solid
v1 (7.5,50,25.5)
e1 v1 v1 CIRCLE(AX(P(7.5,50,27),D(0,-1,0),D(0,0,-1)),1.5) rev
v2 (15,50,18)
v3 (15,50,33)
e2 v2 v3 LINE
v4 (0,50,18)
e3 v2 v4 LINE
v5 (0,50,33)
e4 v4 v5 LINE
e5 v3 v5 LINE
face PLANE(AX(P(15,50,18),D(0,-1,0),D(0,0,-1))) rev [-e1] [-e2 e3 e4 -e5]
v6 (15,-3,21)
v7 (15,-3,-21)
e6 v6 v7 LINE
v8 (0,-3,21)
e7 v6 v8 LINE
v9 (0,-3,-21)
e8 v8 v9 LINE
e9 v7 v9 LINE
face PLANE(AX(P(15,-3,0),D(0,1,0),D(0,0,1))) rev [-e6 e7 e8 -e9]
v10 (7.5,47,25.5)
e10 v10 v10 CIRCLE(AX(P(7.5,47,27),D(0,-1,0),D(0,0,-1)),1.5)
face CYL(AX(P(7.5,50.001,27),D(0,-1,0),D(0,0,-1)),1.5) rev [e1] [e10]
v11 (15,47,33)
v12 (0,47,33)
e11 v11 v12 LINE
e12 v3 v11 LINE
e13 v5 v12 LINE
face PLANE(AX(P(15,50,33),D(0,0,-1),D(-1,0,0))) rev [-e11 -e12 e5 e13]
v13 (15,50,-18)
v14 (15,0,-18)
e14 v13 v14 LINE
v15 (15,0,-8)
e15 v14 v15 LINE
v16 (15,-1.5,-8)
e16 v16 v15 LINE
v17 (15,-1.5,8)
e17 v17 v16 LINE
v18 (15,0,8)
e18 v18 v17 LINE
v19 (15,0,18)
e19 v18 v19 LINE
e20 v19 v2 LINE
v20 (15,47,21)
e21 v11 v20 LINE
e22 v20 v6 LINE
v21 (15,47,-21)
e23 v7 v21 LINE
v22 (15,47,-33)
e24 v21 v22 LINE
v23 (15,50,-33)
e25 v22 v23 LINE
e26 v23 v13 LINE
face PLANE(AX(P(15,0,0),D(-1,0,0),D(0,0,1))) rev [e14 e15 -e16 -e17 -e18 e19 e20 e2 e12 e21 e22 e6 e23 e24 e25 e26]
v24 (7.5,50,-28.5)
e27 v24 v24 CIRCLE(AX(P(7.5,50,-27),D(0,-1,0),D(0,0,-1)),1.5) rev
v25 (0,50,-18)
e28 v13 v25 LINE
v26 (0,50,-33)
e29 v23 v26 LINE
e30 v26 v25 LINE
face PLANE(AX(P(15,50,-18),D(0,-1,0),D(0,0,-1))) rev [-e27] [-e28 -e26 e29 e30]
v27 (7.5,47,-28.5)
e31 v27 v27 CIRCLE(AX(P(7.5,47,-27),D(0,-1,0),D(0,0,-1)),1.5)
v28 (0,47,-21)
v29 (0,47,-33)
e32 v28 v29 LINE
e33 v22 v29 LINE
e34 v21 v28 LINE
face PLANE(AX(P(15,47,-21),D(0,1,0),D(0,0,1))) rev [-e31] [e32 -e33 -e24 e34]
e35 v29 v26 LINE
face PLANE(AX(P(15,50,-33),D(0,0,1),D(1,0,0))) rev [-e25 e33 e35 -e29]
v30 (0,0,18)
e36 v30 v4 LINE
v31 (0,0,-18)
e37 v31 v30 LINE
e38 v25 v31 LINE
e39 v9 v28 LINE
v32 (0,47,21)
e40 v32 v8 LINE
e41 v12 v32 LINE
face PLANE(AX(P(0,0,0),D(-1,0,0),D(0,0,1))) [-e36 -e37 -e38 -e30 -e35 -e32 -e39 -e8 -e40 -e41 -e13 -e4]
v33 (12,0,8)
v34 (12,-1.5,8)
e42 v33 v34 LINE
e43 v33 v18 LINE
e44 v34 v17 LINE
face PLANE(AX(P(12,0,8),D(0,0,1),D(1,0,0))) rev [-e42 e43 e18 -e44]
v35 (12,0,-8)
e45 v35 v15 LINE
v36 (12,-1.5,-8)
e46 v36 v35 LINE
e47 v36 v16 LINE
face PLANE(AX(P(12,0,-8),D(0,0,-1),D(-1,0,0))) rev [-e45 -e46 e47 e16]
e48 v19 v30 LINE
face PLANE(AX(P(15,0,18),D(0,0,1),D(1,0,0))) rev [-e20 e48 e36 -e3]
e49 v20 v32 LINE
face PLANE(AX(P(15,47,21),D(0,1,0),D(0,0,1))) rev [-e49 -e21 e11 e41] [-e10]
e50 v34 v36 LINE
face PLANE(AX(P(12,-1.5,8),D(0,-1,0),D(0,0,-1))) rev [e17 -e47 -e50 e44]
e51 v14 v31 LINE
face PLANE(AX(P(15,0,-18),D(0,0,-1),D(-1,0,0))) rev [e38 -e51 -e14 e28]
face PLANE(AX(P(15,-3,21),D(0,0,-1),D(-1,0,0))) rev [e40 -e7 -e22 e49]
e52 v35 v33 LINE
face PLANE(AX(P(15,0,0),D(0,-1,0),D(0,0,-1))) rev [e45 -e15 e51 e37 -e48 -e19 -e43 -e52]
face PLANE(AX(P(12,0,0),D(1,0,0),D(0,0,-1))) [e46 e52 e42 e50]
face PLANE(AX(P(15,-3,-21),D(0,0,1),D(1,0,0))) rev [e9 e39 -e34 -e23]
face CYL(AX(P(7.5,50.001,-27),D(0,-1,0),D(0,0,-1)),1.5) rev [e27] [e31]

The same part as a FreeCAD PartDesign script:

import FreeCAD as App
import Part
import Sketcher
from FreeCAD import Vector
Q = App.Units.Quantity

doc = App.newDocument("Part")
body = doc.addObject("PartDesign::Body", "Body")

# Sketch on YZ plane
sketch1 = body.newObject("Sketcher::SketchObject", "Sketch")
sketch1.AttachmentSupport = (doc.getObject("YZ_Plane"), [""])
sketch1.MapMode = "FlatFace"
sketch1.addGeometry(Part.LineSegment(Vector(0, -18, 0), Vector(0, 18, 0)), False)
sketch1.addGeometry(Part.LineSegment(Vector(0, 18, 0), Vector(50, 18, 0)), False)
sketch1.addGeometry(Part.LineSegment(Vector(50, 18, 0), Vector(50, 33, 0)), False)
sketch1.addGeometry(Part.LineSegment(Vector(50, 33, 0), Vector(47, 33, 0)), False)
sketch1.addGeometry(Part.LineSegment(Vector(47, 33, 0), Vector(47, 21, 0)), False)
sketch1.addGeometry(Part.LineSegment(Vector(47, 21, 0), Vector(-3, 21, 0)), False)
sketch1.addGeometry(Part.LineSegment(Vector(-3, 21, 0), Vector(-3, -21, 0)), False)
sketch1.addGeometry(Part.LineSegment(Vector(-3, -21, 0), Vector(47, -21, 0)), False)
sketch1.addGeometry(Part.LineSegment(Vector(47, -21, 0), Vector(47, -33, 0)), False)
sketch1.addGeometry(Part.LineSegment(Vector(47, -33, 0), Vector(50, -33, 0)), False)
sketch1.addGeometry(Part.LineSegment(Vector(50, -33, 0), Vector(50, -18, 0)), False)
sketch1.addGeometry(Part.LineSegment(Vector(50, -18, 0), Vector(0, -18, 0)), False)
sketch1.addConstraint(Sketcher.Constraint("Coincident", 0, 2, 1, 1))
sketch1.addConstraint(Sketcher.Constraint("Coincident", 1, 2, 2, 1))
sketch1.addConstraint(Sketcher.Constraint("Coincident", 2, 2, 3, 1))
sketch1.addConstraint(Sketcher.Constraint("Coincident", 3, 2, 4, 1))
sketch1.addConstraint(Sketcher.Constraint("Coincident", 4, 2, 5, 1))
sketch1.addConstraint(Sketcher.Constraint("Coincident", 5, 2, 6, 1))
sketch1.addConstraint(Sketcher.Constraint("Coincident", 6, 2, 7, 1))
sketch1.addConstraint(Sketcher.Constraint("Coincident", 7, 2, 8, 1))
sketch1.addConstraint(Sketcher.Constraint("Coincident", 8, 2, 9, 1))
sketch1.addConstraint(Sketcher.Constraint("Coincident", 9, 2, 10, 1))
sketch1.addConstraint(Sketcher.Constraint("Coincident", 10, 2, 11, 1))
sketch1.addConstraint(Sketcher.Constraint("Coincident", 11, 2, 0, 1))
sketch1.addConstraint(Sketcher.Constraint("Vertical", 0))
sketch1.addConstraint(Sketcher.Constraint("Horizontal", 1))
sketch1.addConstraint(Sketcher.Constraint("Vertical", 2))
sketch1.addConstraint(Sketcher.Constraint("Horizontal", 3))
sketch1.addConstraint(Sketcher.Constraint("Vertical", 4))
sketch1.addConstraint(Sketcher.Constraint("Horizontal", 5))
sketch1.addConstraint(Sketcher.Constraint("Vertical", 6))
sketch1.addConstraint(Sketcher.Constraint("Horizontal", 7))
sketch1.addConstraint(Sketcher.Constraint("Vertical", 8))
sketch1.addConstraint(Sketcher.Constraint("Horizontal", 9))
sketch1.addConstraint(Sketcher.Constraint("Vertical", 10))
sketch1.addConstraint(Sketcher.Constraint("Horizontal", 11))
sketch1.addConstraint(Sketcher.Constraint("Symmetric", 0, 2, 11, 2, -1, 1))
sketch1.addConstraint(Sketcher.Constraint("Symmetric", 4, 2, 7, 2, -1))
sketch1.addConstraint(Sketcher.Constraint("Symmetric", 2, 2, 9, 2, -1))
sketch1.addConstraint(Sketcher.Constraint("Equal", 1, 5))
sketch1.addConstraint(Sketcher.Constraint("DistanceX", 1, 1, 1, 2, Q("50 mm")))
sketch1.addConstraint(Sketcher.Constraint("DistanceX", 3, 2, 3, 1, Q("3 mm")))
sketch1.addConstraint(Sketcher.Constraint("DistanceY", 0, 1, 0, 2, Q("36 mm")))
sketch1.addConstraint(Sketcher.Constraint("DistanceY", 2, 1, 2, 2, Q("15 mm")))
sketch1.addConstraint(Sketcher.Constraint("DistanceY", 4, 2, 4, 1, Q("12 mm")))
pad1 = body.newObject("PartDesign::Pad", "Pad")
pad1.Profile = sketch1
pad1.Length = 15

# Sketch on XZ plane
sketch2 = body.newObject("Sketcher::SketchObject", "Sketch001")
sketch2.AttachmentSupport = (doc.getObject("XZ_Plane"), [""])
sketch2.MapMode = "FlatFace"
sketch2.AttachmentOffset = App.Placement(Vector(0, 0, -47), App.Rotation())
sketch2.addGeometry(Part.Circle(Vector(7.5, -27, 0), Vector(0, 0, 1), 1.5), False)
sketch2.addConstraint(Sketcher.Constraint("Diameter", 0, Q("3 mm")))
sketch2.addConstraint(Sketcher.Constraint("DistanceY", 0, 3, -1, 1, Q("27 mm")))
sketch2.addConstraint(Sketcher.Constraint("DistanceX", -1, 1, 0, 3, Q("7.5 mm")))
pocket1 = body.newObject("PartDesign::Pocket", "Pocket")
pocket1.Profile = sketch2
pocket1.Type = "UpToFirst"

# Sketch on XZ plane
sketch3 = body.newObject("Sketcher::SketchObject", "Sketch002")
sketch3.AttachmentSupport = (doc.getObject("XZ_Plane"), [""])
sketch3.MapMode = "FlatFace"
sketch3.AttachmentOffset = App.Placement(Vector(0, 0, -47), App.Rotation())
sketch3.addGeometry(Part.Circle(Vector(7.5, 27, 0), Vector(0, 0, 1), 1.5), False)
sketch3.addConstraint(Sketcher.Constraint("Diameter", 0, Q("3 mm")))
sketch3.addConstraint(Sketcher.Constraint("DistanceY", -1, 1, 0, 3, Q("27 mm")))
sketch3.addConstraint(Sketcher.Constraint("DistanceX", -1, 1, 0, 3, Q("7.5 mm")))
pocket2 = body.newObject("PartDesign::Pocket", "Pocket001")
pocket2.Profile = sketch3
pocket2.Type = "UpToFirst"

# Sketch on YZ plane
sketch4 = body.newObject("Sketcher::SketchObject", "Sketch003")
sketch4.AttachmentSupport = (doc.getObject("YZ_Plane"), [""])
sketch4.MapMode = "FlatFace"
sketch4.AttachmentOffset = App.Placement(Vector(0, 0, 15), App.Rotation())
sketch4.addGeometry(Part.LineSegment(Vector(0, 8, 0), Vector(-1.5, 8, 0)), False)
sketch4.addGeometry(Part.LineSegment(Vector(-1.5, 8, 0), Vector(-1.5, -8, 0)), False)
sketch4.addGeometry(Part.LineSegment(Vector(-1.5, -8, 0), Vector(0, -8, 0)), False)
sketch4.addGeometry(Part.LineSegment(Vector(0, -8, 0), Vector(0, 8, 0)), False)
sketch4.addConstraint(Sketcher.Constraint("Coincident", 0, 2, 1, 1))
sketch4.addConstraint(Sketcher.Constraint("Coincident", 1, 2, 2, 1))
sketch4.addConstraint(Sketcher.Constraint("Coincident", 2, 2, 3, 1))
sketch4.addConstraint(Sketcher.Constraint("Coincident", 3, 2, 0, 1))
sketch4.addConstraint(Sketcher.Constraint("Horizontal", 0))
sketch4.addConstraint(Sketcher.Constraint("Vertical", 1))
sketch4.addConstraint(Sketcher.Constraint("Horizontal", 2))
sketch4.addConstraint(Sketcher.Constraint("Vertical", 3))
sketch4.addConstraint(Sketcher.Constraint("Symmetric", 2, 2, 3, 2, -1, 1))
sketch4.addConstraint(Sketcher.Constraint("DistanceY", 1, 2, 1, 1, Q("16 mm")))
sketch4.addConstraint(Sketcher.Constraint("DistanceX", 0, 2, 0, 1, Q("1.5 mm")))
pocket3 = body.newObject("PartDesign::Pocket", "Pocket002")
pocket3.Profile = sketch4
pocket3.Length = 3

doc.recompute()
